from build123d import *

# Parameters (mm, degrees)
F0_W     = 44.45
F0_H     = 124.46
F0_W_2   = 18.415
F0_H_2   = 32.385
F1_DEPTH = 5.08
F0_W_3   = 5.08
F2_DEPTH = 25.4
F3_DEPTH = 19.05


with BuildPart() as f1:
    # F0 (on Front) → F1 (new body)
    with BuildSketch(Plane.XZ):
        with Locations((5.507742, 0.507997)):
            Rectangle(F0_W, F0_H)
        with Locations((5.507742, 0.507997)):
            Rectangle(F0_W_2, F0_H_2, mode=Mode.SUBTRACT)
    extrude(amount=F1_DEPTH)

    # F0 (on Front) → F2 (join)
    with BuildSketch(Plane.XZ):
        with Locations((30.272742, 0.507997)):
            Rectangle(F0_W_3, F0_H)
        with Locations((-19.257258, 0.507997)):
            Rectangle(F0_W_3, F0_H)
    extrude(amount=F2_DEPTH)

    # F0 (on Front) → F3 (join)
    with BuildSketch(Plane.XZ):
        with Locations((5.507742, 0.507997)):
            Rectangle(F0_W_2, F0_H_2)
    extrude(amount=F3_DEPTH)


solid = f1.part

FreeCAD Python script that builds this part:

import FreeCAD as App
import Part
import Sketcher
from FreeCAD import Vector
Q = App.Units.Quantity


def add_polygon(sketch, points):
    """Adds a closed chain of lines whose ends are joined by coincident constraints."""
    first, n = sketch.GeometryCount, len(points)
    for a, b in zip(points, points[1:] + points[:1]):
        sketch.addGeometry(Part.LineSegment(App.Vector(*a, 0), App.Vector(*b, 0)), False)
    for i in range(n):
        sketch.addConstraint(Sketcher.Constraint("Coincident", first + i, 2, first + (i + 1) % n, 1))

doc = App.newDocument("Part")
params = doc.addObject("Spreadsheet::Sheet", "Params")
for row, (alias, value) in enumerate([
    ("sketch1_height", "4.9 in"),
    ("sketch1_width", "1.75 in"),
    ("sketch1_width2", "0.725 in"),
    ("sketch1_height2", "1.275 in"),
    ("pad1_length", "0.2 in"),
    ("sketch2_width", "0.2 in"),
    ("sketch2_height", "4.9 in"),
    ("pad2_length", "1 in"),
    ("sketch3_width", "0.725 in"),
    ("sketch3_height", "1.275 in"),
    ("pad3_length", "0.75 in"),
], start=1):
    params.set(f"A{row}", alias)
    params.set(f"B{row}", "=" + value)
    params.setAlias(f"B{row}", alias)

body = doc.addObject("PartDesign::Body", "Body")

# Sketch on XZ plane
sketch1 = body.newObject("Sketcher::SketchObject", "Sketch")
sketch1.AttachmentSupport = (doc.getObject("XZ_Plane"), [""])
sketch1.MapMode = "FlatFace"
add_polygon(sketch1, [(-16.717258, 62.737997), (-16.717258, -61.722003), (27.732742, -61.722003), (27.732742, 62.737997)])  # lines 0-3
add_polygon(sketch1, [(14.715242, -15.684503), (-3.699758, -15.684503), (-3.699758, 16.700497), (14.715242, 16.700497)])  # lines 4-7
sketch1.addConstraint(Sketcher.Constraint("Vertical", 0))
sketch1.addConstraint(Sketcher.Constraint("Horizontal", 1))
sketch1.addConstraint(Sketcher.Constraint("Vertical", 2))
sketch1.addConstraint(Sketcher.Constraint("Horizontal", 3))
sketch1.addConstraint(Sketcher.Constraint("Horizontal", 4))
sketch1.addConstraint(Sketcher.Constraint("Vertical", 5))
sketch1.addConstraint(Sketcher.Constraint("Horizontal", 6))
sketch1.addConstraint(Sketcher.Constraint("Vertical", 7))
sketch1.addConstraint(Sketcher.Constraint("DistanceY", 0, 2, 0, 1, Q("4.9 in")))
sketch1.addConstraint(Sketcher.Constraint("DistanceX", 1, 1, 1, 2, Q("1.75 in")))
sketch1.addConstraint(Sketcher.Constraint("DistanceX", 4, 2, 4, 1, Q("0.725 in")))
sketch1.addConstraint(Sketcher.Constraint("DistanceY", 5, 1, 5, 2, Q("1.275 in")))
sketch1.addConstraint(Sketcher.Constraint("DistanceY", 0, 2, -1, 1, Q("2.4300001 in")))
sketch1.addConstraint(Sketcher.Constraint("DistanceY", 0, 2, 4, 2, Q("1.8125 in")))
sketch1.addConstraint(Sketcher.Constraint("DistanceX", 0, 2, 4, 2, Q("0.5125 in")))
sketch1.addConstraint(Sketcher.Constraint("DistanceX", 0, 2, -1, 1, 16.717258))
sketch1.setExpression("Constraints[16]", "Params.sketch1_height")
sketch1.setExpression("Constraints[17]", "Params.sketch1_width")
sketch1.setExpression("Constraints[18]", "Params.sketch1_width2")
sketch1.setExpression("Constraints[19]", "Params.sketch1_height2")
pad1 = body.newObject("PartDesign::Pad", "Pad")
pad1.Profile = sketch1
pad1.setExpression("Length", "Params.pad1_length")

# Sketch on XZ plane
sketch2 = body.newObject("Sketcher::SketchObject", "Sketch001")
sketch2.AttachmentSupport = (doc.getObject("XZ_Plane"), [""])
sketch2.MapMode = "FlatFace"
add_polygon(sketch2, [(27.732742, 62.737997), (27.732742, -61.722003), (32.812742, -61.722003), (32.812742, 62.737997)])  # lines 0-3
add_polygon(sketch2, [(-21.797258, 62.737997), (-21.797258, -61.722003), (-16.717258, -61.722003), (-16.717258, 62.737997)])  # lines 4-7
sketch2.addConstraint(Sketcher.Constraint("Vertical", 0))
sketch2.addConstraint(Sketcher.Constraint("Horizontal", 1))
sketch2.addConstraint(Sketcher.Constraint("Vertical", 2))
sketch2.addConstraint(Sketcher.Constraint("Horizontal", 3))
sketch2.addConstraint(Sketcher.Constraint("Vertical", 4))
sketch2.addConstraint(Sketcher.Constraint("Horizontal", 5))
sketch2.addConstraint(Sketcher.Constraint("Vertical", 6))
sketch2.addConstraint(Sketcher.Constraint("Horizontal", 7))
sketch2.addConstraint(Sketcher.Constraint("Horizontal", 1, 2, 4, 2))
sketch2.addConstraint(Sketcher.Constraint("Horizontal", 3, 2, 6, 2))
sketch2.addConstraint(Sketcher.Constraint("Equal", 3, 5))
sketch2.addConstraint(Sketcher.Constraint("DistanceX", 1, 1, 1, 2, Q("0.2 in")))
sketch2.addConstraint(Sketcher.Constraint("DistanceY", 0, 2, 0, 1, Q("4.9 in")))
sketch2.addConstraint(Sketcher.Constraint("DistanceY", 0, 2, -1, 1, Q("2.4300001 in")))
sketch2.addConstraint(Sketcher.Constraint("DistanceX", 4, 2, 0, 2, Q("1.95 in")))
sketch2.addConstraint(Sketcher.Constraint("DistanceX", -1, 1, 0, 2, 27.732742))
sketch2.setExpression("Constraints[19]", "Params.sketch2_width")
sketch2.setExpression("Constraints[20]", "Params.sketch2_height")
pad2 = body.newObject("PartDesign::Pad", "Pad001")
pad2.Profile = sketch2
pad2.setExpression("Length", "Params.pad2_length")

# Sketch on XZ plane
sketch3 = body.newObject("Sketcher::SketchObject", "Sketch002")
sketch3.AttachmentSupport = (doc.getObject("XZ_Plane"), [""])
sketch3.MapMode = "FlatFace"
add_polygon(sketch3, [(-3.699758, 16.700497), (-3.699758, -15.684503), (14.715242, -15.684503), (14.715242, 16.700497)])  # lines 0-3
sketch3.addConstraint(Sketcher.Constraint("Vertical", 0))
sketch3.addConstraint(Sketcher.Constraint("Horizontal", 1))
sketch3.addConstraint(Sketcher.Constraint("Vertical", 2))
sketch3.addConstraint(Sketcher.Constraint("Horizontal", 3))
sketch3.addConstraint(Sketcher.Constraint("DistanceX", 1, 1, 1, 2, Q("0.725 in")))
sketch3.addConstraint(Sketcher.Constraint("DistanceY", 0, 2, 0, 1, Q("1.275 in")))
sketch3.addConstraint(Sketcher.Constraint("DistanceY", 0, 2, -1, 1, Q("0.6175001 in")))
sketch3.addConstraint(Sketcher.Constraint("DistanceX", 0, 2, -1, 1, 3.699758))
sketch3.setExpression("Constraints[8]", "Params.sketch3_width")
sketch3.setExpression("Constraints[9]", "Params.sketch3_height")
pad3 = body.newObject("PartDesign::Pad", "Pad002")
pad3.Profile = sketch3
pad3.setExpression("Length", "Params.pad3_length")

doc.recompute()
